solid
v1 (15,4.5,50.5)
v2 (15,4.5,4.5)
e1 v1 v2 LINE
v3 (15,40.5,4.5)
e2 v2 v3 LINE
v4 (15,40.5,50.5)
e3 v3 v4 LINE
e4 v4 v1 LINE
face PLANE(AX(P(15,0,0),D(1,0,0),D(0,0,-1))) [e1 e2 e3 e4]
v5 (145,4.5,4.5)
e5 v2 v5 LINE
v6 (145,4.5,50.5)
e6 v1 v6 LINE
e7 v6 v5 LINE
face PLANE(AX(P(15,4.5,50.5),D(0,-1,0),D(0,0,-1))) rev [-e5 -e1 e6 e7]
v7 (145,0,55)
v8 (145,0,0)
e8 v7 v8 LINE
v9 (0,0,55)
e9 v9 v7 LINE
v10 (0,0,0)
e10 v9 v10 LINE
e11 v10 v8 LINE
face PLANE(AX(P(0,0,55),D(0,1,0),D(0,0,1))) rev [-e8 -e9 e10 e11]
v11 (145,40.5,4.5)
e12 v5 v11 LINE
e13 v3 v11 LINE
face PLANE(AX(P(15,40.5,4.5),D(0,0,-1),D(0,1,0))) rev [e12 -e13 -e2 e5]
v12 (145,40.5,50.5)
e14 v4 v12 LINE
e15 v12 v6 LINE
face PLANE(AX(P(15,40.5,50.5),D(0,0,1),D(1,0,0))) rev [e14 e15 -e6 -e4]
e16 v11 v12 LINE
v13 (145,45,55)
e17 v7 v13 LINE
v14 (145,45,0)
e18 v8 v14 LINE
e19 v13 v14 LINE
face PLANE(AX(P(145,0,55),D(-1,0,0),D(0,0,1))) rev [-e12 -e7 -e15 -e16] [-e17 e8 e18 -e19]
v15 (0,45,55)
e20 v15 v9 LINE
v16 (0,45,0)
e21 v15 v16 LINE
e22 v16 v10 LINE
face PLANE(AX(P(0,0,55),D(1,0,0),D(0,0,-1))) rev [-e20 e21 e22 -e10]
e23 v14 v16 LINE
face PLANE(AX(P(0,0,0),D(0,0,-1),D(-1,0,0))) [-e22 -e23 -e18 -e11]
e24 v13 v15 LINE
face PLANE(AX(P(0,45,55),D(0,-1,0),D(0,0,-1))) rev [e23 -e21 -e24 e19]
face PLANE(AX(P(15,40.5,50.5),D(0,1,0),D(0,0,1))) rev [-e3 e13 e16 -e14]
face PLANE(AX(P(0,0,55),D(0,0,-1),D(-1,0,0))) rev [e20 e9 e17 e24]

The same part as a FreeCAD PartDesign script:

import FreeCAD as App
import Part
import Sketcher
from FreeCAD import Vector


def add_polygon(sketch, points):
    """Adds a closed chain of lines whose ends are joined by coincident constraints."""
    first, n = sketch.GeometryCount, len(points)
    for a, b in zip(points, points[1:] + points[:1]):
        sketch.addGeometry(Part.LineSegment(App.Vector(*a, 0), App.Vector(*b, 0)), False)
    for i in range(n):
        sketch.addConstraint(Sketcher.Constraint("Coincident", first + i, 2, first + (i + 1) % n, 1))

doc = App.newDocument("Part")
params = doc.addObject("Spreadsheet::Sheet", "Params")
for row, (alias, value) in enumerate([
    ("sketch1_width", "145 mm"),
    ("sketch1_height", "45 mm"),
    ("pad1_length", "55 mm"),
    ("sketch2_width", "36 mm"),
    ("sketch2_height", "46 mm"),
    ("pocket1_length", "130 mm"),
], start=1):
    params.set(f"A{row}", alias)
    params.set(f"B{row}", "=" + value)
    params.setAlias(f"B{row}", alias)

body = doc.addObject("PartDesign::Body", "Body")

# Sketch on XY plane
sketch1 = body.newObject("Sketcher::SketchObject", "Sketch")
sketch1.AttachmentSupport = (doc.getObject("XY_Plane"), [""])
sketch1.MapMode = "FlatFace"
add_polygon(sketch1, [(0, 45), (0, 0), (145, 0), (145, 45)])  # lines 0-3
sketch1.addConstraint(Sketcher.Constraint("Vertical", 0))
sketch1.addConstraint(Sketcher.Constraint("Horizontal", 1))
sketch1.addConstraint(Sketcher.Constraint("Vertical", 2))
sketch1.addConstraint(Sketcher.Constraint("Horizontal", 3))
sketch1.addConstraint(Sketcher.Constraint("Coincident", 0, 2, -1, 1))
sketch1.addConstraint(Sketcher.Constraint("DistanceX", 1, 1, 1, 2, 145.0))
sketch1.addConstraint(Sketcher.Constraint("DistanceY", 0, 2, 0, 1, 45.0))
sketch1.setExpression("Constraints[9]", "Params.sketch1_width")
sketch1.setExpression("Constraints[10]", "Params.sketch1_height")
pad1 = body.newObject("PartDesign::Pad", "Pad")
pad1.Profile = sketch1
pad1.setExpression("Length", "Params.pad1_length")

# Sketch on YZ plane
sketch2 = body.newObject("Sketcher::SketchObject", "Sketch001")
sketch2.AttachmentSupport = (doc.getObject("YZ_Plane"), [""])
sketch2.MapMode = "FlatFace"
sketch2.AttachmentOffset = App.Placement(Vector(0, 0, 145), App.Rotation())
add_polygon(sketch2, [(40, 50), (4, 50), (4, 4), (40, 4)])  # lines 0-3
sketch2.addConstraint(Sketcher.Constraint("Horizontal", 0))
sketch2.addConstraint(Sketcher.Constraint("Vertical", 1))
sketch2.addConstraint(Sketcher.Constraint("Horizontal", 2))
sketch2.addConstraint(Sketcher.Constraint("Vertical", 3))
sketch2.addConstraint(Sketcher.Constraint("DistanceX", 0, 2, 0, 1, 36.0))
sketch2.addConstraint(Sketcher.Constraint("DistanceY", 1, 2, 1, 1, 46.0))
sketch2.addConstraint(Sketcher.Constraint("DistanceX", -1, 1, 0, 2, 4.5))
sketch2.addConstraint(Sketcher.Constraint("DistanceY", -1, 1, 0, 2, 50.5))
sketch2.setExpression("Constraints[8]", "Params.sketch2_width")
sketch2.setExpression("Constraints[9]", "Params.sketch2_height")
pocket1 = body.newObject("PartDesign::Pocket", "Pocket")
pocket1.Profile = sketch2
pocket1.setExpression("Length", "Params.pocket1_length")

doc.recompute()
